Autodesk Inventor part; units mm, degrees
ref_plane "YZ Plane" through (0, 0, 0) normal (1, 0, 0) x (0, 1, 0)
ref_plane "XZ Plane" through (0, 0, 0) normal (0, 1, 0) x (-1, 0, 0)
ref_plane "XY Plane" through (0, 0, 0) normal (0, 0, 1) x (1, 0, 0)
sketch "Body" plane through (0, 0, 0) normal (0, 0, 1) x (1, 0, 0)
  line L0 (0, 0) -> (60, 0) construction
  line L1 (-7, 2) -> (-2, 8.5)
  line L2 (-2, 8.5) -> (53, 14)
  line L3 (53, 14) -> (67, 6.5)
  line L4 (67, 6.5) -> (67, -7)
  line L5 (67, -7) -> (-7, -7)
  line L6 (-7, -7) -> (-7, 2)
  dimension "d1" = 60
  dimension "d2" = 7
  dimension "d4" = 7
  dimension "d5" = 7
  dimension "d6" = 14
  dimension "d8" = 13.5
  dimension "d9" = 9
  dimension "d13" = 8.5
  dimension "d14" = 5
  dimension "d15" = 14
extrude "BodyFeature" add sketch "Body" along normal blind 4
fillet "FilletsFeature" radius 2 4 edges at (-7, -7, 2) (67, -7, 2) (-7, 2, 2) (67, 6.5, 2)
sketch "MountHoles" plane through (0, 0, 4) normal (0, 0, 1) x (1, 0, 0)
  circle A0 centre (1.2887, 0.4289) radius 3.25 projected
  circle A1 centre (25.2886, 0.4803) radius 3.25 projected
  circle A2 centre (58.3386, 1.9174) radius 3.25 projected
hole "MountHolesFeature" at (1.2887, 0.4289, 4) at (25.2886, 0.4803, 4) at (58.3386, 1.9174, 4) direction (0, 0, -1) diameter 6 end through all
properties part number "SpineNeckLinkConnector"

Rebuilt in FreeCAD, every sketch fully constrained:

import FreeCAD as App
import Part
import Sketcher
from FreeCAD import Vector
Q = App.Units.Quantity


def edges_at(feature, points):
    """Names of the edges that pass closest to the given points."""
    edges = feature.Shape.Edges
    near = lambda p: min(range(len(edges)), key=lambda i: edges[i].distToShape(Part.Vertex(*p))[0])
    return sorted({f"Edge{near(p) + 1}" for p in points})


def add_polygon(sketch, points):
    """Adds a closed chain of lines whose ends are joined by coincident constraints."""
    first, n = sketch.GeometryCount, len(points)
    for a, b in zip(points, points[1:] + points[:1]):
        sketch.addGeometry(Part.LineSegment(App.Vector(*a, 0), App.Vector(*b, 0)), False)
    for i in range(n):
        sketch.addConstraint(Sketcher.Constraint("Coincident", first + i, 2, first + (i + 1) % n, 1))

doc = App.newDocument("Part")
body = doc.addObject("PartDesign::Body", "Body")

# Sketch on XY plane
sketch1 = doc.addObject("Sketcher::SketchObject", "Sketch")
body.addObject(sketch1)
sketch1.AttachmentSupport = (doc.XY_Plane, [""])
sketch1.MapMode = "FlatFace"
add_polygon(sketch1, [(-2, 8), (-7, 2), (-7, -7), (67, -7), (67, 6), (53, 14)])  # lines 0-5
sketch1.addConstraint(Sketcher.Constraint("Vertical", 1))
sketch1.addConstraint(Sketcher.Constraint("Horizontal", 2))
sketch1.addConstraint(Sketcher.Constraint("Vertical", 3))
sketch1.addConstraint(Sketcher.Constraint("DistanceY", 1, 2, 1, 1, Q("9 mm")))
sketch1.addConstraint(Sketcher.Constraint("DistanceY", 3, 1, 3, 2, Q("13.5 mm")))
sketch1.addConstraint(Sketcher.Constraint("DistanceX", 0, 2, -1, 1, Q("7 mm")))
sketch1.addConstraint(Sketcher.Constraint("DistanceY", 1, 2, -1, 1, Q("7 mm")))
sketch1.addConstraint(Sketcher.Constraint("DistanceY", -1, 1, 4, 2, Q("14 mm")))
sketch1.addConstraint(Sketcher.Constraint("DistanceX", 4, 2, 3, 2, Q("14 mm")))
sketch1.addConstraint(Sketcher.Constraint("DistanceX", 0, 2, 4, 2, Q("60 mm")))
sketch1.addConstraint(Sketcher.Constraint("DistanceX", 0, 2, 5, 2, Q("5 mm")))
sketch1.addConstraint(Sketcher.Constraint("DistanceY", -1, 1, 5, 2, Q("8.5 mm")))
pad1 = doc.addObject("PartDesign::Pad", "Pad")
body.addObject(pad1)
pad1.Profile = sketch1
pad1.Length = 4
doc.recompute()

fillet = doc.addObject("PartDesign::Fillet", "Fillet")
body.addObject(fillet)
fillet.Base = (pad1, edges_at(pad1, [
    (-7, -7, 2),
    (67, -7, 2),
    (-7, 2, 2),
    (67, 6.5, 2),
]))
fillet.Radius = 2

# Sketch on XY plane
sketch2 = doc.addObject("Sketcher::SketchObject", "Sketch001")
body.addObject(sketch2)
sketch2.AttachmentSupport = (doc.XY_Plane, [""])
sketch2.MapMode = "FlatFace"
sketch2.AttachmentOffset = App.Placement(Vector(0, 0, 4), App.Rotation())
sketch2.addGeometry(Part.Circle(Vector(1.3, 0.4, 0), Vector(0, 0, 1), 3), False)
sketch2.addGeometry(Part.Circle(Vector(25.3, 0.5, 0), Vector(0, 0, 1), 3), False)
sketch2.addGeometry(Part.Circle(Vector(58.3, 1.9, 0), Vector(0, 0, 1), 3), False)
sketch2.addConstraint(Sketcher.Constraint("Equal", 0, 1))
sketch2.addConstraint(Sketcher.Constraint("Equal", 1, 2))
sketch2.addConstraint(Sketcher.Constraint("Diameter", 0, Q("6 mm")))
sketch2.addConstraint(Sketcher.Constraint("DistanceX", 0, 3, 1, 3, Q("24 mm")))
sketch2.addConstraint(Sketcher.Constraint("DistanceX", 1, 3, 2, 3, Q("33.05 mm")))
sketch2.addConstraint(Sketcher.Constraint("DistanceY", -1, 1, 0, 3, Q("0.429 mm")))
sketch2.addConstraint(Sketcher.Constraint("DistanceY", 1, 3, 2, 3, Q("1.437 mm")))
sketch2.addConstraint(Sketcher.Constraint("DistanceX", -1, 1, 0, 3, Q("1.2887 mm")))
sketch2.addConstraint(Sketcher.Constraint("DistanceY", -1, 1, 1, 3, Q("0.4803 mm")))
doc.recompute()
hole = doc.addObject("PartDesign::Hole", "Hole")
body.addObject(hole)
hole.Profile = sketch2
hole.ThreadType = "None"
hole.Diameter = 6
hole.DepthType = "ThroughAll"

doc.recompute()
